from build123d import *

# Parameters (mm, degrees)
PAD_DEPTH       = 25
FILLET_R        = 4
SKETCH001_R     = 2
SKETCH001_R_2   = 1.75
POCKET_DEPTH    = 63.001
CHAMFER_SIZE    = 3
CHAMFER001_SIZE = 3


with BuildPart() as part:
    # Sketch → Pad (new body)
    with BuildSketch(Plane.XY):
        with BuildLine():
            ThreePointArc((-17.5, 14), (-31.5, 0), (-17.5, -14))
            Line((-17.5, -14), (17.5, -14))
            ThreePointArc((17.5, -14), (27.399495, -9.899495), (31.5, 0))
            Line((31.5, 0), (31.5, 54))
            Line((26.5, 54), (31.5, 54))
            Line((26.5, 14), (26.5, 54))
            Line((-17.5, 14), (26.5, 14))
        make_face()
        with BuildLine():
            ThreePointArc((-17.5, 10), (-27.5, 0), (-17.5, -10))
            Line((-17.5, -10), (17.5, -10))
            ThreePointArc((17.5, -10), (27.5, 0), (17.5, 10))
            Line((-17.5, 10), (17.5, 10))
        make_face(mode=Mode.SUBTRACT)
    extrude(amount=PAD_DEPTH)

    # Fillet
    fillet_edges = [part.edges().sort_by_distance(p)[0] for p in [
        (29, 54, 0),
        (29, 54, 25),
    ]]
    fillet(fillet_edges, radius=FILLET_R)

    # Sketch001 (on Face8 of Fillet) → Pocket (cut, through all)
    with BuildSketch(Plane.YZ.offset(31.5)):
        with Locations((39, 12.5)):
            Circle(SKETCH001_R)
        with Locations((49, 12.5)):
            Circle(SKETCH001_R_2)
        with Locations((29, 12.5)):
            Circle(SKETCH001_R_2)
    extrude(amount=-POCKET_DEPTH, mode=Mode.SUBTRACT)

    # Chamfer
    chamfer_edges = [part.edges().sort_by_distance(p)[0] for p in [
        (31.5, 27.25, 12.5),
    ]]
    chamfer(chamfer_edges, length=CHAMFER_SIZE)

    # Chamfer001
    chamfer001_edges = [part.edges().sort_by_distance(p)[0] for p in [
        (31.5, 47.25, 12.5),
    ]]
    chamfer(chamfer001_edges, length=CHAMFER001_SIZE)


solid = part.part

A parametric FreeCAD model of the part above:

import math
import FreeCAD as App
import Part
import Sketcher

V = App.Vector
Q = App.Units.Quantity


def edges_at(feature, points):
    """Names of the edges that pass closest to the given points."""
    edges = feature.Shape.Edges
    near = lambda p: min(range(len(edges)), key=lambda i: edges[i].distToShape(Part.Vertex(*p))[0])
    return sorted({f"Edge{near(p) + 1}" for p in points})

doc = App.newDocument("Part")
body = doc.addObject("PartDesign::Body", "Body")

sketch1 = body.newObject("Sketcher::SketchObject", "Sketch")
sketch1.AttachmentSupport = (doc.getObject("XY_Plane"), [""])
sketch1.MapMode = "FlatFace"
sketch1.addGeometry([
    Part.ArcOfCircle(Part.Circle(V(-18, 0, 0), V(0, 0, 1), 14), math.radians(90), math.radians(270)),
    Part.LineSegment(V(-18, -14, 0), V(18, -14, 0)),
    Part.ArcOfCircle(Part.Circle(V(18, 0, 0), V(0, 0, 1), 14), math.radians(-90), math.radians(0)),
    Part.LineSegment(V(32, 0, 0), V(32, 54, 0)),
    Part.LineSegment(V(32, 54, 0), V(26, 54, 0)),
    Part.LineSegment(V(26, 54, 0), V(26, 14, 0)),
    Part.LineSegment(V(26, 14, 0), V(-18, 14, 0)),
    Part.ArcOfCircle(Part.Circle(V(-18, 0, 0), V(0, 0, 1), 10), math.radians(90), math.radians(270)),
    Part.LineSegment(V(-18, 10, 0), V(18, 10, 0)),
    Part.ArcOfCircle(Part.Circle(V(18, 0, 0), V(0, 0, 1), 10), math.radians(-90), math.radians(90)),
    Part.LineSegment(V(18, -10, 0), V(-18, -10, 0)),
], False)
sketch1.addConstraint([
    Sketcher.Constraint("Tangent", 0, 2, 1, 1),
    Sketcher.Constraint("Tangent", 1, 2, 2, 1),
    Sketcher.Constraint("Tangent", 2, 2, 3, 1),
    Sketcher.Constraint("Coincident", 3, 2, 4, 1),
    Sketcher.Constraint("Coincident", 4, 2, 5, 1),
    Sketcher.Constraint("Coincident", 5, 2, 6, 1),
    Sketcher.Constraint("Tangent", 6, 2, 0, 1),
    Sketcher.Constraint("Tangent", 7, 1, 8, 1),
    Sketcher.Constraint("Tangent", 8, 2, 9, 2),
    Sketcher.Constraint("Tangent", 9, 1, 10, 1),
    Sketcher.Constraint("Tangent", 10, 2, 7, 2),
    Sketcher.Constraint("Horizontal", 1),
    Sketcher.Constraint("Vertical", 3),
    Sketcher.Constraint("Horizontal", 4),
    Sketcher.Constraint("Vertical", 5),
    Sketcher.Constraint("Horizontal", 6),
    Sketcher.Constraint("Horizontal", 8),
    Sketcher.Constraint("Horizontal", 10),
    Sketcher.Constraint("Coincident", 7, 3, 0, 3),
    Sketcher.Constraint("Coincident", 9, 3, 2, 3),
    Sketcher.Constraint("Symmetric", 0, 3, 2, 3, -1, 1),
    Sketcher.Constraint("Radius", 0, Q("14 mm")),
    Sketcher.Constraint("Radius", 7, Q("10 mm")),
    Sketcher.Constraint("DistanceX", 1, 1, 1, 2, Q("35 mm")),
    Sketcher.Constraint("DistanceX", 4, 2, 4, 1, Q("5 mm")),
    Sketcher.Constraint("DistanceY", 3, 1, 3, 2, Q("54 mm")),
])
pad1 = body.newObject("PartDesign::Pad", "Pad")
pad1.Profile = sketch1
pad1.Length = 25
doc.recompute()

fillet = body.newObject("PartDesign::Fillet", "Fillet")
fillet.Base = (pad1, edges_at(pad1, [(29, 54, 0), (29, 54, 25)]))
fillet.Radius = 4

sketch2 = body.newObject("Sketcher::SketchObject", "Sketch001")
sketch2.AttachmentSupport = (doc.getObject("YZ_Plane"), [""])
sketch2.MapMode = "FlatFace"
sketch2.AttachmentOffset = App.Placement(V(0, 0, 31.5), App.Rotation())
sketch2.addGeometry([
    Part.Circle(V(39, 12.5, 0), V(0, 0, 1), 2),
    Part.Circle(V(49, 12.5, 0), V(0, 0, 1), 1.8),
    Part.Circle(V(29, 12.5, 0), V(0, 0, 1), 1.8),
], False)
sketch2.addConstraint([
    Sketcher.Constraint("Equal", 1, 2),
    Sketcher.Constraint("Horizontal", 0, 3, 1, 3),
    Sketcher.Constraint("Horizontal", 1, 3, 2, 3),
    Sketcher.Constraint("Diameter", 0, Q("4 mm")),
    Sketcher.Constraint("Diameter", 1, Q("3.5 mm")),
    Sketcher.Constraint("DistanceX", -1, 1, 0, 3, Q("39 mm")),
    Sketcher.Constraint("DistanceX", -1, 1, 1, 3, Q("49 mm")),
    Sketcher.Constraint("DistanceX", -1, 1, 2, 3, Q("29 mm")),
    Sketcher.Constraint("DistanceY", -1, 1, 0, 3, Q("12.5 mm")),
])
pocket1 = body.newObject("PartDesign::Pocket", "Pocket")
pocket1.Profile = sketch2
pocket1.Type = "ThroughAll"
doc.recompute()

chamfer = body.newObject("PartDesign::Chamfer", "Chamfer")
chamfer.Base = (pocket1, edges_at(pocket1, [(31.5, 27.25, 12.5)]))
chamfer.Size = 3
doc.recompute()

chamfer2 = body.newObject("PartDesign::Chamfer", "Chamfer001")
chamfer2.Base = (chamfer, edges_at(chamfer, [(31.5, 47.25, 12.5)]))
chamfer2.Size = 3

doc.recompute()
